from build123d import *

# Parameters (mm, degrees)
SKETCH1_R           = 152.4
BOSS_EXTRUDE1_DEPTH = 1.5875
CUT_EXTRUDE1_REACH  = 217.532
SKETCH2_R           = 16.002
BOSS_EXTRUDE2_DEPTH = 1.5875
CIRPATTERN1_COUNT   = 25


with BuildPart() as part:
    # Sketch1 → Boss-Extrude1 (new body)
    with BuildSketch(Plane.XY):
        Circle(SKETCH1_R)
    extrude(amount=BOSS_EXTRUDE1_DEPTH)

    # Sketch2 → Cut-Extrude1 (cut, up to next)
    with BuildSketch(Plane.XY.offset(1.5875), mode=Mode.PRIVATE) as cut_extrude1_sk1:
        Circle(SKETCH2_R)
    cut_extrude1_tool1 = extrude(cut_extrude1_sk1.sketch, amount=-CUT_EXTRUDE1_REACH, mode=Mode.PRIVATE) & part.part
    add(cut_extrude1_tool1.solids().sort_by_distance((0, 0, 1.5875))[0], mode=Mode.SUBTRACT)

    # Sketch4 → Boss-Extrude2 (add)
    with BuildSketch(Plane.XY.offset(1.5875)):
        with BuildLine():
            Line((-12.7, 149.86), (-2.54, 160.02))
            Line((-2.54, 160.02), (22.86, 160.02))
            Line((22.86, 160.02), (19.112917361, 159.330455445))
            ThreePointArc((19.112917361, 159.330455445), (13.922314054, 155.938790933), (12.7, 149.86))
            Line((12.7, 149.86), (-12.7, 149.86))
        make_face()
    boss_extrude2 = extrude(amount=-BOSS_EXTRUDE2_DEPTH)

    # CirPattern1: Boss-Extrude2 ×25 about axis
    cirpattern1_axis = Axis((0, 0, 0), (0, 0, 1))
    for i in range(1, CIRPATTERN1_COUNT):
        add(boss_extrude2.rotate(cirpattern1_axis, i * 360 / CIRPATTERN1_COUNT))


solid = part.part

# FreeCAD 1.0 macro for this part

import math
import FreeCAD as App
import Part
import Sketcher
Q = App.Units.Quantity

doc = App.newDocument("Part")
body = doc.addObject("PartDesign::Body", "Body")

# Sketch on XY plane
sketch1 = body.newObject("Sketcher::SketchObject", "Sketch")
sketch1.AttachmentSupport = (doc.getObject("XY_Plane"), [""])
sketch1.MapMode = "FlatFace"
sketch1.addGeometry(Part.Circle(App.Vector(0, 0, 0), App.Vector(0, 0, 1), 152.4), False)
sketch1.addConstraint(Sketcher.Constraint("Coincident", 0, 3, -1, 1))
sketch1.addConstraint(Sketcher.Constraint("Diameter", 0, Q("12 in")))
pad1 = body.newObject("PartDesign::Pad", "Pad")
pad1.Profile = sketch1
pad1.Length = Q("0.0625 in")

# Sketch on XY plane
sketch2 = body.newObject("Sketcher::SketchObject", "Sketch001")
sketch2.AttachmentSupport = (doc.getObject("XY_Plane"), [""])
sketch2.MapMode = "FlatFace"
sketch2.AttachmentOffset = App.Placement(App.Vector(0, 0, 0.0625 * 25.4), App.Rotation())
sketch2.addGeometry(Part.Circle(App.Vector(0, 0, 0), App.Vector(0, 0, 1), 16.002), False)
sketch2.addConstraint(Sketcher.Constraint("Coincident", 0, 3, -1, 1))
sketch2.addConstraint(Sketcher.Constraint("Diameter", 0, Q("1.26 in")))
pocket1 = body.newObject("PartDesign::Pocket", "Pocket")
pocket1.Profile = sketch2
pocket1.Type = "UpToFirst"

# Sketch on XY plane
sketch3 = body.newObject("Sketcher::SketchObject", "Sketch002")
sketch3.AttachmentSupport = (doc.getObject("XY_Plane"), [""])
sketch3.MapMode = "FlatFace"
sketch3.AttachmentOffset = App.Placement(App.Vector(0, 0, 0.0625 * 25.4), App.Rotation())
sketch3.addGeometry(Part.LineSegment(App.Vector(-2.54, 160.02, 0), App.Vector(-12.7, 149.86, 0)), False)
sketch3.addGeometry(Part.LineSegment(App.Vector(-12.7, 149.86, 0), App.Vector(12.7, 149.86, 0)), False)
sketch3.addGeometry(Part.ArcOfCircle(Part.Circle(App.Vector(20.564776, 151.440849, 0), App.Vector(0, 0, 1), 8.022081), math.radians(100.427012), math.radians(191.365215)), False)
sketch3.addGeometry(Part.LineSegment(App.Vector(19.112917, 159.330455, 0), App.Vector(22.86, 160.02, 0)), False)
sketch3.addGeometry(Part.LineSegment(App.Vector(22.86, 160.02, 0), App.Vector(-2.54, 160.02, 0)), False)
sketch3.addConstraint(Sketcher.Constraint("Coincident", 0, 2, 1, 1))
sketch3.addConstraint(Sketcher.Constraint("Coincident", 1, 2, 2, 2))
sketch3.addConstraint(Sketcher.Constraint("Tangent", 2, 1, 3, 1))
sketch3.addConstraint(Sketcher.Constraint("Coincident", 3, 2, 4, 1))
sketch3.addConstraint(Sketcher.Constraint("Coincident", 4, 2, 0, 1))
sketch3.addConstraint(Sketcher.Constraint("Horizontal", 1))
sketch3.addConstraint(Sketcher.Constraint("Horizontal", 4))
sketch3.addConstraint(Sketcher.Constraint("Equal", 1, 4))
sketch3.addConstraint(Sketcher.Constraint("DistanceX", 1, 1, 1, 2, Q("1 in")))
sketch3.addConstraint(Sketcher.Constraint("Angle", 0, Q("-135 deg")))
sketch3.addConstraint(Sketcher.Constraint("DistanceX", 0, 2, -1, 1, Q("0.5 in")))
sketch3.addConstraint(Sketcher.Constraint("DistanceY", -1, 1, 0, 2, Q("5.9 in")))
sketch3.addConstraint(Sketcher.Constraint("DistanceX", -1, 1, 3, 2, Q("0.9 in")))
sketch3.addConstraint(Sketcher.Constraint("Distance", 3, Q("0.15 in")))
sketch3.addConstraint(Sketcher.Constraint("Radius", 2, Q("8.022081 mm")))
pad2 = body.newObject("PartDesign::Pad", "Pad001")
pad2.Profile = sketch3
pad2.Length = Q("0.0625 in")
pad2.Reversed = True
doc.recompute()

polarpattern = body.newObject("PartDesign::PolarPattern", "PolarPattern")
polarpattern.Originals = [pad2]
polarpattern.Axis = (doc.getObject("Z_Axis"), [""])
polarpattern.Angle = 360
polarpattern.Occurrences = 25
body.Tip = polarpattern

doc.recompute()
